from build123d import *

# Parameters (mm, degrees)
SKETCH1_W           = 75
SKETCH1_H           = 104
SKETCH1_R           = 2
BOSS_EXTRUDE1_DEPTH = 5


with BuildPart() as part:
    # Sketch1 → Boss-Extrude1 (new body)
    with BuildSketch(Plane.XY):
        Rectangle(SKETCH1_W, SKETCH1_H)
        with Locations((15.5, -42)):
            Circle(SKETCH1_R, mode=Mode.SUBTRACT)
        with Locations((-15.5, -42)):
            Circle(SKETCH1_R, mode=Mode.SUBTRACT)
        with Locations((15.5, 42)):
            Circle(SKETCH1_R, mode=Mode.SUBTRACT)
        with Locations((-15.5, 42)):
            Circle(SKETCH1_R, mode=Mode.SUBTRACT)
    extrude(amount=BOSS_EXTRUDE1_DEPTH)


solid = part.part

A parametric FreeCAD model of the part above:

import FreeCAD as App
import Part
import Sketcher

V = App.Vector

doc = App.newDocument("Part")
body = doc.addObject("PartDesign::Body", "Body")

# Sketch on XY plane
sketch1 = doc.addObject("Sketcher::SketchObject", "Sketch")
body.addObject(sketch1)
sketch1.AttachmentSupport = (doc.XY_Plane, [""])
sketch1.MapMode = "FlatFace"
sketch1.addGeometry([
    Part.LineSegment(V(-37.5, 52, 0), V(-37.5, -52, 0)),  # 0
    Part.LineSegment(V(-37.5, -52, 0), V(37.5, -52, 0)),  # 1
    Part.LineSegment(V(37.5, -52, 0), V(37.5, 52, 0)),  # 2
    Part.LineSegment(V(37.5, 52, 0), V(-37.5, 52, 0)),  # 3
    Part.Circle(V(-15.5, -42, 0), V(0, 0, 1), 2),  # 4
    Part.Circle(V(15.5, -42, 0), V(0, 0, 1), 2),  # 5
    Part.Circle(V(-15.5, 42, 0), V(0, 0, 1), 2),  # 6
    Part.Circle(V(15.5, 42, 0), V(0, 0, 1), 2),  # 7
], False)
sketch1.addConstraint([
    Sketcher.Constraint("Coincident", 0, 2, 1, 1),
    Sketcher.Constraint("Coincident", 1, 2, 2, 1),
    Sketcher.Constraint("Coincident", 2, 2, 3, 1),
    Sketcher.Constraint("Coincident", 3, 2, 0, 1),
    Sketcher.Constraint("Vertical", 0),
    Sketcher.Constraint("Horizontal", 1),
    Sketcher.Constraint("Vertical", 2),
    Sketcher.Constraint("Horizontal", 3),
    Sketcher.Constraint("Equal", 4, 5),
    Sketcher.Constraint("Equal", 5, 6),
    Sketcher.Constraint("Equal", 6, 7),
    Sketcher.Constraint("Symmetric", 5, 3, 6, 3, -1, 1),
    Sketcher.Constraint("Symmetric", 4, 3, 7, 3, -1, 1),
    Sketcher.Constraint("Symmetric", 0, 2, 2, 2, -1, 1),
    Sketcher.Constraint("Symmetric", 4, 3, 5, 3, -2),
    Sketcher.Constraint("Diameter", 4, 4.0),
    Sketcher.Constraint("DistanceX", 1, 1, 1, 2, 75.0),
    Sketcher.Constraint("DistanceY", 0, 2, 0, 1, 104.0),
    Sketcher.Constraint("DistanceY", 4, 3, -1, 1, 42.0),
    Sketcher.Constraint("DistanceX", 4, 3, 5, 3, 31.0),
])
pad1 = doc.addObject("PartDesign::Pad", "Pad")
body.addObject(pad1)
pad1.Profile = sketch1
pad1.Length = 5

doc.recompute()
